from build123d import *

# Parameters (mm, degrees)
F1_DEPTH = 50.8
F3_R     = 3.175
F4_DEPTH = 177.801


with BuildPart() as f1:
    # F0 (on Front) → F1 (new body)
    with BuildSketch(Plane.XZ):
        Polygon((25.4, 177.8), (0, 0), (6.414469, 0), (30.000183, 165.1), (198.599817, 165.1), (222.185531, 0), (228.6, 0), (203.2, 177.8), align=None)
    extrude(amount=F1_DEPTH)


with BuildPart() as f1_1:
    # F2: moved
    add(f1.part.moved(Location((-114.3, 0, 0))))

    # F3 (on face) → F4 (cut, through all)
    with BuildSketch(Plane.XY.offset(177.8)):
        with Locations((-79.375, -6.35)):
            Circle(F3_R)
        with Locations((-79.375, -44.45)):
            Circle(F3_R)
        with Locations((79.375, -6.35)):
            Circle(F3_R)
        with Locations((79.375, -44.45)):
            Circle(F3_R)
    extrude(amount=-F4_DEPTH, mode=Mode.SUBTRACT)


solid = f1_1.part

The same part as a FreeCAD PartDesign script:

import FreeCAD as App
import Part
import Sketcher
Q = App.Units.Quantity

doc = App.newDocument("Part")
params = doc.addObject("Spreadsheet::Sheet", "Params")
for row, (alias, value) in enumerate([
    ("sketch1_width", "7 in"),
    ("pad1_length", "2 in"),
    ("sketch2_diameter", "0.25 in"),
], start=1):
    params.set(f"A{row}", alias)
    params.set(f"B{row}", "=" + value)
    params.setAlias(f"B{row}", alias)

body = doc.addObject("PartDesign::Body", "Body")

sketch1 = body.newObject("Sketcher::SketchObject", "Sketch")
sketch1.AttachmentSupport = (doc.getObject("XZ_Plane"), [""])
sketch1.MapMode = "FlatFace"
sketch1.addGeometry([
    Part.LineSegment(App.Vector(25, 178, 0), App.Vector(0, 0, 0)),
    Part.LineSegment(App.Vector(0, 0, 0), App.Vector(6, 0, 0)),
    Part.LineSegment(App.Vector(6, 0, 0), App.Vector(30, 165, 0)),
    Part.LineSegment(App.Vector(30, 165, 0), App.Vector(199, 165, 0)),
    Part.LineSegment(App.Vector(199, 165, 0), App.Vector(222, 0, 0)),
    Part.LineSegment(App.Vector(222, 0, 0), App.Vector(229, 0, 0)),
    Part.LineSegment(App.Vector(229, 0, 0), App.Vector(203, 178, 0)),
    Part.LineSegment(App.Vector(203, 178, 0), App.Vector(25, 178, 0)),
], False)
sketch1.addConstraint([
    Sketcher.Constraint("Coincident", 0, 2, 1, 1),
    Sketcher.Constraint("Coincident", 1, 2, 2, 1),
    Sketcher.Constraint("Coincident", 2, 2, 3, 1),
    Sketcher.Constraint("Coincident", 3, 2, 4, 1),
    Sketcher.Constraint("Coincident", 4, 2, 5, 1),
    Sketcher.Constraint("Coincident", 5, 2, 6, 1),
    Sketcher.Constraint("Coincident", 6, 2, 7, 1),
    Sketcher.Constraint("Coincident", 7, 2, 0, 1),
    Sketcher.Constraint("Horizontal", 1),
    Sketcher.Constraint("Horizontal", 3),
    Sketcher.Constraint("Horizontal", 5),
    Sketcher.Constraint("Horizontal", 7),
    Sketcher.Constraint("Coincident", 0, 2, -1, 1),
    Sketcher.Constraint("PointOnObject", 4, 2, -1),
    Sketcher.Constraint("Parallel", 0, 2),
    Sketcher.Constraint("Parallel", 4, 6),
    Sketcher.Constraint("Equal", 1, 5),
    Sketcher.Constraint("Equal", 2, 4),
    Sketcher.Constraint("DistanceX", 7, 2, 7, 1, Q("7 in")),
    Sketcher.Constraint("DistanceX", -1, 1, 5, 2, Q("9 in")),
    Sketcher.Constraint("DistanceY", -1, 1, 6, 2, Q("7 in")),
    Sketcher.Constraint("DistanceY", -1, 1, 2, 2, Q("6.5 in")),
    Sketcher.Constraint("DistanceX", 1, 1, 1, 2, 6.414469),
])
sketch1.setExpression("Constraints[18]", "Params.sketch1_width")
pad1 = body.newObject("PartDesign::Pad", "Pad")
pad1.Profile = sketch1
pad1.setExpression("Length", "Params.pad1_length")
body2 = doc.addObject("PartDesign::Body", "Body001")
doc.recompute()

body.Placement = App.Placement(App.Vector(-114.3, 0, 0), App.Rotation(App.Vector(0, 0, 1), 0))
boolean = body2.newObject("PartDesign::Boolean", "Boolean")
boolean.Type = "Fuse"
boolean.addObjects([body])

sketch2 = body2.newObject("Sketcher::SketchObject", "Sketch001")
sketch2.AttachmentSupport = (doc.getObject("XY_Plane001"), [""])
sketch2.MapMode = "FlatFace"
sketch2.AttachmentOffset = App.Placement(App.Vector(0, 0, 7 * 25.4), App.Rotation())
sketch2.addGeometry([
    Part.Circle(App.Vector(-79.4, -6.3, 0), App.Vector(0, 0, 1), 3.2),
    Part.Circle(App.Vector(-79.4, -44.5, 0), App.Vector(0, 0, 1), 3.2),
    Part.Circle(App.Vector(79.4, -6.3, 0), App.Vector(0, 0, 1), 3.2),
    Part.Circle(App.Vector(79.4, -44.5, 0), App.Vector(0, 0, 1), 3.2),
], False)
sketch2.addConstraint([
    Sketcher.Constraint("Equal", 0, 1),
    Sketcher.Constraint("Equal", 1, 2),
    Sketcher.Constraint("Equal", 2, 3),
    Sketcher.Constraint("Symmetric", 0, 3, 2, 3, -2),
    Sketcher.Constraint("Symmetric", 1, 3, 3, 3, -2),
    Sketcher.Constraint("Vertical", 0, 3, 1, 3),
    Sketcher.Constraint("Diameter", 0, Q("0.25 in")),
    Sketcher.Constraint("DistanceY", 1, 3, 0, 3, Q("1.5 in")),
    Sketcher.Constraint("DistanceY", 0, 3, -1, 1, Q("0.25 in")),
    Sketcher.Constraint("DistanceX", 0, 3, 2, 3, Q("6.25 in")),
])
sketch2.setExpression("Constraints[6]", "Params.sketch2_diameter")
pocket1 = body2.newObject("PartDesign::Pocket", "Pocket")
pocket1.Profile = sketch2
pocket1.Type = "ThroughAll"

doc.recompute()
